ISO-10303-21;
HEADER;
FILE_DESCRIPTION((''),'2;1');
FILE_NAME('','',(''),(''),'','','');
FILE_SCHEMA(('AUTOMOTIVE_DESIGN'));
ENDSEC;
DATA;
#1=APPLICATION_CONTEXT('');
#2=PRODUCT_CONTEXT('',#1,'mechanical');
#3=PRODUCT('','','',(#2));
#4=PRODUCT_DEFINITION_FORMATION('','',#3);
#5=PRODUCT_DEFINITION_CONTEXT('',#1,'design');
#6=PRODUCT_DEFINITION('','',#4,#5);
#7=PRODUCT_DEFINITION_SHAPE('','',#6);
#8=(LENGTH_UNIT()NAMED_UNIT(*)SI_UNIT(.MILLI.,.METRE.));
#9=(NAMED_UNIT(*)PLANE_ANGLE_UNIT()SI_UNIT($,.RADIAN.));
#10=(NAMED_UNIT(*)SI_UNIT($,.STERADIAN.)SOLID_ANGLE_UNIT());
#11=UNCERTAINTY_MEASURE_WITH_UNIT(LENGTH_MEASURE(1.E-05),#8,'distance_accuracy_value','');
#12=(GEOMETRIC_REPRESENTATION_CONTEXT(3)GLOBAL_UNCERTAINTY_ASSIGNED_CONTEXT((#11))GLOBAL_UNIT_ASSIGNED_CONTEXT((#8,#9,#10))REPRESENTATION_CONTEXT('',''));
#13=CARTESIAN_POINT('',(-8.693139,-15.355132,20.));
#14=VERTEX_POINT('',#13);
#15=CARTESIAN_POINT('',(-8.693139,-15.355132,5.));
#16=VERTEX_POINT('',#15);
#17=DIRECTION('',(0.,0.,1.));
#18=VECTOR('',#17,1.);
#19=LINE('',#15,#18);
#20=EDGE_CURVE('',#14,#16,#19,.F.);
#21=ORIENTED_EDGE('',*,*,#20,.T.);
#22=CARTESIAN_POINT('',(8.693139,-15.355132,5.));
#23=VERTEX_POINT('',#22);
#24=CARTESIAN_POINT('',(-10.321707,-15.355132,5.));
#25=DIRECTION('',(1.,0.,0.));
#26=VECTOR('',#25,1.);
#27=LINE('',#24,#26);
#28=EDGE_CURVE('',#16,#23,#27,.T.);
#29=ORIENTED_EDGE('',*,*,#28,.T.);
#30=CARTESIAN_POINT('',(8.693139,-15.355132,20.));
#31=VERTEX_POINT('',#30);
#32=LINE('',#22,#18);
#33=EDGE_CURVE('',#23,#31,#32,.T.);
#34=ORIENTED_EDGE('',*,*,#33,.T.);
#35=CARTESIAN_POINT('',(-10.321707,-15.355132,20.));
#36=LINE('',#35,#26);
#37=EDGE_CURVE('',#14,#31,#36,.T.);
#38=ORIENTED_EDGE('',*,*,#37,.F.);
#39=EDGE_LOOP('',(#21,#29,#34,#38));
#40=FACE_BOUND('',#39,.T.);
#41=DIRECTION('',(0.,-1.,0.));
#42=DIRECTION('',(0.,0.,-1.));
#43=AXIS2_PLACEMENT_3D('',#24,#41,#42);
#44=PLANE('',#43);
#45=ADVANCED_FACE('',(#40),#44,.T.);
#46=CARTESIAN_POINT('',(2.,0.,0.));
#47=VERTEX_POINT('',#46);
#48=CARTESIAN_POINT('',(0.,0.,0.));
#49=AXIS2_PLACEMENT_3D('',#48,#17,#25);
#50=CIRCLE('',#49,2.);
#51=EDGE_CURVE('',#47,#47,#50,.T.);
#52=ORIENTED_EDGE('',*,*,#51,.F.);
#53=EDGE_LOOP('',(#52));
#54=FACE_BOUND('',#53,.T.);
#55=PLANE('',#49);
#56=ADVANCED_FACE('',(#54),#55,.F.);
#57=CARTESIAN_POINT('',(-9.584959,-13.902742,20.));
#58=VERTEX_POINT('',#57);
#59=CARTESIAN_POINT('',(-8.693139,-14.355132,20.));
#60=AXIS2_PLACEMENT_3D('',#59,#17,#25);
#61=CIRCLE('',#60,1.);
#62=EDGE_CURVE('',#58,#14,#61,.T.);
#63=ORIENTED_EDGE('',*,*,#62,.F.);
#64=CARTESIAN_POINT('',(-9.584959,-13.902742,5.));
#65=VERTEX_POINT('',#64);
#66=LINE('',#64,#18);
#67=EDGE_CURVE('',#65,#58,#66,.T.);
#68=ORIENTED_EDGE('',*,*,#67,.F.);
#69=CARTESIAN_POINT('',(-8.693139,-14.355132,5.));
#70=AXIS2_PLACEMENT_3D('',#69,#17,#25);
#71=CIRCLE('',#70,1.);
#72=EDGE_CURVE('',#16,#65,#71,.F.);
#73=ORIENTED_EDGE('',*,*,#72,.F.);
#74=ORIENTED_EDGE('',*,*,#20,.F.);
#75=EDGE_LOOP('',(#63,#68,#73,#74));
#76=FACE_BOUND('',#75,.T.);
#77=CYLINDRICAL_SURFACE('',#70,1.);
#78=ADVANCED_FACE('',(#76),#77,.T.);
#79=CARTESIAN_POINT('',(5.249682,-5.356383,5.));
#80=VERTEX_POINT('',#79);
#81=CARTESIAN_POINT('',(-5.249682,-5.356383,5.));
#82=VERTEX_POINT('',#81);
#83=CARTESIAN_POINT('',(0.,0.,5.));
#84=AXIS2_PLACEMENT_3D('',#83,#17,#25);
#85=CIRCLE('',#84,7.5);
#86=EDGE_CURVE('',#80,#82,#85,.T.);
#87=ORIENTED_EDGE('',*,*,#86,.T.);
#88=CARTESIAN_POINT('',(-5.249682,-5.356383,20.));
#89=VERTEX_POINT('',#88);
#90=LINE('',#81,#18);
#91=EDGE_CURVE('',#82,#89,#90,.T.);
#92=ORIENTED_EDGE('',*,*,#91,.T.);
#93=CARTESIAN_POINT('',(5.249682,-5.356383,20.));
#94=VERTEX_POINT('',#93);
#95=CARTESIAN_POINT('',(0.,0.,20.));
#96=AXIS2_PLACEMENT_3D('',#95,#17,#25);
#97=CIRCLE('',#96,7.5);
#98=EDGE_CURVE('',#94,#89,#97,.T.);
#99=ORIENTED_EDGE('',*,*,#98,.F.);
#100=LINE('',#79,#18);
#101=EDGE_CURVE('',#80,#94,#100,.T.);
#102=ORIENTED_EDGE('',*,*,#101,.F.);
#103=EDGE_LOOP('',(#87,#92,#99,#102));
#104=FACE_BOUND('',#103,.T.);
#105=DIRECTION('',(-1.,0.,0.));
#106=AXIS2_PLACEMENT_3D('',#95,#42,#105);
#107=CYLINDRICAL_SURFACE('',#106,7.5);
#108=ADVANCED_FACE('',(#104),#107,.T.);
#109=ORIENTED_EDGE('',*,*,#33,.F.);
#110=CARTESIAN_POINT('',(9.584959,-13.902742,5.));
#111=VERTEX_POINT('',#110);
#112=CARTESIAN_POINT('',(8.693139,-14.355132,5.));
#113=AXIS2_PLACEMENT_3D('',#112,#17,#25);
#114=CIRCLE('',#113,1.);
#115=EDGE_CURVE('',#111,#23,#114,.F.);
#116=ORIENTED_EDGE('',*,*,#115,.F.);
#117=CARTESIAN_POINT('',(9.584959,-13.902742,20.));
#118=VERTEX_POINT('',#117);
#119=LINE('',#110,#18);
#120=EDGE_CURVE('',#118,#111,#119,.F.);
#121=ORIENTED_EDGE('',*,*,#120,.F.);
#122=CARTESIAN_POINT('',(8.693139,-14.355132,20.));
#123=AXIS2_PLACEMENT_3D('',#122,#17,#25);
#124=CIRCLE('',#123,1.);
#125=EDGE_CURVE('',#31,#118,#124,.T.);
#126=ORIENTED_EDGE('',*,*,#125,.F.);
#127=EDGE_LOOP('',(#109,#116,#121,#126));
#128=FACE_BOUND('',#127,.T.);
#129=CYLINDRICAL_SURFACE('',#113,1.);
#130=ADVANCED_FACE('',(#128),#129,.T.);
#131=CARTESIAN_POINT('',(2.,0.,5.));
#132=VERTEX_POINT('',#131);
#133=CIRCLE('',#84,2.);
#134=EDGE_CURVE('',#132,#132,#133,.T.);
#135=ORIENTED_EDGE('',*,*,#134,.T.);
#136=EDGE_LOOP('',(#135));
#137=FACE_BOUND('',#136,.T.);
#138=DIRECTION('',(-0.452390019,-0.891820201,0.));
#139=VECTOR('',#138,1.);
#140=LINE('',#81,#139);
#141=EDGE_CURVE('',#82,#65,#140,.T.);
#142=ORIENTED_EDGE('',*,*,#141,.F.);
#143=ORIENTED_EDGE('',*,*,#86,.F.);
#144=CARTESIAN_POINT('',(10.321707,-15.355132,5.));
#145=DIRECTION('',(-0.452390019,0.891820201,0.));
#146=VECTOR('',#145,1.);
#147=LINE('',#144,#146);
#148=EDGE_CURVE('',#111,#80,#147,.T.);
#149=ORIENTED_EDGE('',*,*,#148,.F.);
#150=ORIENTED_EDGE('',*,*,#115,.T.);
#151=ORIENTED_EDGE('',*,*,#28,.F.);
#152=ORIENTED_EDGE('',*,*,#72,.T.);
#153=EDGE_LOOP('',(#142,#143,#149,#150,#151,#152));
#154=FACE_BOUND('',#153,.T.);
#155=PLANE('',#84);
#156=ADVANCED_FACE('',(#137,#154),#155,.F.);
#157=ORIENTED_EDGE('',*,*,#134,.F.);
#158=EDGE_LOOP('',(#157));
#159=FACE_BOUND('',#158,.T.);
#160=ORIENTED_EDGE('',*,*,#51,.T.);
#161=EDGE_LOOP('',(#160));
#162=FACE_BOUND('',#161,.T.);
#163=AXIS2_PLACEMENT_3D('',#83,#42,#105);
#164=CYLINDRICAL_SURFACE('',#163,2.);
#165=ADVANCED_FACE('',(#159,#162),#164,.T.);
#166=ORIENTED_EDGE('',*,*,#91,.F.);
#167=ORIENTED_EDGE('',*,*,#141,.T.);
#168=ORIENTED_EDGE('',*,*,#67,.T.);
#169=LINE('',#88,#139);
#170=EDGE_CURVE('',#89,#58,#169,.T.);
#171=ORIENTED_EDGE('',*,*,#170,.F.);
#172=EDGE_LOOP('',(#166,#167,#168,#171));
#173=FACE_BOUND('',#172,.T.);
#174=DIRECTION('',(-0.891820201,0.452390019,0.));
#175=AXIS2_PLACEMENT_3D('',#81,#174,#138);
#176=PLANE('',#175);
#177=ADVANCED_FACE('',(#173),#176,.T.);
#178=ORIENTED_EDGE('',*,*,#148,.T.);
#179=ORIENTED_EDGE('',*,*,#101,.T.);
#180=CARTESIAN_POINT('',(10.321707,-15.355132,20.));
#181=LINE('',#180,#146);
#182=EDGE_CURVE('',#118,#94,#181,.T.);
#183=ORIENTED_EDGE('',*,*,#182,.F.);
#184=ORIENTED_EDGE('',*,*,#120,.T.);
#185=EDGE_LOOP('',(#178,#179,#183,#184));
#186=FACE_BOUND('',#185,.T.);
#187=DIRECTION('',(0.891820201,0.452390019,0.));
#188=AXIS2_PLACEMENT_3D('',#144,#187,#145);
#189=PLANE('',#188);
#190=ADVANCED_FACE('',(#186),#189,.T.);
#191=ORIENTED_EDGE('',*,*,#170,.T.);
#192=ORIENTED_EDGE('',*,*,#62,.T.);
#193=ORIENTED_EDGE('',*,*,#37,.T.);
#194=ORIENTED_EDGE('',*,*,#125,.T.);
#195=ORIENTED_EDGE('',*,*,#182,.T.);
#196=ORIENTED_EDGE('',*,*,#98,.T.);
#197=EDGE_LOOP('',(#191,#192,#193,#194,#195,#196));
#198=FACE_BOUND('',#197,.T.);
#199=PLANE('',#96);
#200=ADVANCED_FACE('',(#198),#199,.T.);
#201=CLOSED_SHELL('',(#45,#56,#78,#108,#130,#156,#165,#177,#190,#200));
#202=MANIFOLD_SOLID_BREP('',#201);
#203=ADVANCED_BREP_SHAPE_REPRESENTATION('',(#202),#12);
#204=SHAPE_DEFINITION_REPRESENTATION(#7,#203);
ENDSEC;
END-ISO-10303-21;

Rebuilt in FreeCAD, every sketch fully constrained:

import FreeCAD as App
import Part
import Sketcher


def edges_at(feature, points):
    """Names of the edges that pass closest to the given points."""
    edges = feature.Shape.Edges
    near = lambda p: min(range(len(edges)), key=lambda i: edges[i].distToShape(Part.Vertex(*p))[0])
    return sorted({f"Edge{near(p) + 1}" for p in points})

doc = App.newDocument("Part")
body = doc.addObject("PartDesign::Body", "Body")

sketch1 = body.newObject("Sketcher::SketchObject", "Sketch")
sketch1.AttachmentSupport = (doc.getObject("XY_Plane"), [""])
sketch1.MapMode = "FlatFace"
sketch1.addGeometry(Part.Circle(App.Vector(0, 0, 0), App.Vector(0, 0, 1), 2), False)
sketch1.addConstraint([
    Sketcher.Constraint("Coincident", 0, 3, -1, 1),
    Sketcher.Constraint("Diameter", 0, 4.0),
])
pad1 = body.newObject("PartDesign::Pad", "Pad")
pad1.Profile = sketch1
pad1.Length = 5

sketch2 = body.newObject("Sketcher::SketchObject", "Sketch001")
sketch2.AttachmentSupport = (doc.getObject("XY_Plane"), [""])
sketch2.MapMode = "FlatFace"
sketch2.AttachmentOffset = App.Placement(App.Vector(0, 0, 5), App.Rotation())
sketch2.addGeometry(Part.Circle(App.Vector(0, 0, 0), App.Vector(0, 0, 1), 8), False)
sketch2.addConstraint([
    Sketcher.Constraint("Coincident", 0, 3, -1, 1),
    Sketcher.Constraint("Diameter", 0, 15.0),
])
pad2 = body.newObject("PartDesign::Pad", "Pad001")
pad2.Profile = sketch2
pad2.Length = 15

sketch3 = body.newObject("Sketcher::SketchObject", "Sketch002")
sketch3.AttachmentSupport = (doc.getObject("XY_Plane"), [""])
sketch3.MapMode = "FlatFace"
sketch3.AttachmentOffset = App.Placement(App.Vector(0, 0, 20), App.Rotation())
sketch3.addGeometry([
    Part.LineSegment(App.Vector(-5, -5, 0), App.Vector(-10, -15, 0)),
    Part.LineSegment(App.Vector(-10, -15, 0), App.Vector(10, -15, 0)),
    Part.LineSegment(App.Vector(10, -15, 0), App.Vector(5, -5, 0)),
    Part.LineSegment(App.Vector(5, -5, 0), App.Vector(-5, -5, 0)),
], False)
sketch3.addConstraint([
    Sketcher.Constraint("Coincident", 0, 2, 1, 1),
    Sketcher.Constraint("Coincident", 1, 2, 2, 1),
    Sketcher.Constraint("Coincident", 2, 2, 3, 1),
    Sketcher.Constraint("Coincident", 3, 2, 0, 1),
    Sketcher.Constraint("Horizontal", 1),
    Sketcher.Constraint("Horizontal", 3),
    Sketcher.Constraint("Equal", 0, 2),
    Sketcher.Constraint("Distance", 0, 11.21162),
    Sketcher.Constraint("DistanceX", 1, 1, 1, 2, 20.643414),
    Sketcher.Constraint("DistanceX", 3, 2, 3, 1, 10.499364),
    Sketcher.Constraint("DistanceX", 0, 2, -1, 1, 10.321707),
    Sketcher.Constraint("DistanceY", 0, 2, -1, 1, 15.355132),
])
pad3 = body.newObject("PartDesign::Pad", "Pad002")
pad3.Profile = sketch3
pad3.Length = 15
pad3.Reversed = True
doc.recompute()

fillet = body.newObject("PartDesign::Fillet", "Fillet")
fillet.Base = (pad3, edges_at(pad3, [(10.322, -15.355, 12.5), (-10.322, -15.355, 12.5)]))
fillet.Radius = 1

doc.recompute()
